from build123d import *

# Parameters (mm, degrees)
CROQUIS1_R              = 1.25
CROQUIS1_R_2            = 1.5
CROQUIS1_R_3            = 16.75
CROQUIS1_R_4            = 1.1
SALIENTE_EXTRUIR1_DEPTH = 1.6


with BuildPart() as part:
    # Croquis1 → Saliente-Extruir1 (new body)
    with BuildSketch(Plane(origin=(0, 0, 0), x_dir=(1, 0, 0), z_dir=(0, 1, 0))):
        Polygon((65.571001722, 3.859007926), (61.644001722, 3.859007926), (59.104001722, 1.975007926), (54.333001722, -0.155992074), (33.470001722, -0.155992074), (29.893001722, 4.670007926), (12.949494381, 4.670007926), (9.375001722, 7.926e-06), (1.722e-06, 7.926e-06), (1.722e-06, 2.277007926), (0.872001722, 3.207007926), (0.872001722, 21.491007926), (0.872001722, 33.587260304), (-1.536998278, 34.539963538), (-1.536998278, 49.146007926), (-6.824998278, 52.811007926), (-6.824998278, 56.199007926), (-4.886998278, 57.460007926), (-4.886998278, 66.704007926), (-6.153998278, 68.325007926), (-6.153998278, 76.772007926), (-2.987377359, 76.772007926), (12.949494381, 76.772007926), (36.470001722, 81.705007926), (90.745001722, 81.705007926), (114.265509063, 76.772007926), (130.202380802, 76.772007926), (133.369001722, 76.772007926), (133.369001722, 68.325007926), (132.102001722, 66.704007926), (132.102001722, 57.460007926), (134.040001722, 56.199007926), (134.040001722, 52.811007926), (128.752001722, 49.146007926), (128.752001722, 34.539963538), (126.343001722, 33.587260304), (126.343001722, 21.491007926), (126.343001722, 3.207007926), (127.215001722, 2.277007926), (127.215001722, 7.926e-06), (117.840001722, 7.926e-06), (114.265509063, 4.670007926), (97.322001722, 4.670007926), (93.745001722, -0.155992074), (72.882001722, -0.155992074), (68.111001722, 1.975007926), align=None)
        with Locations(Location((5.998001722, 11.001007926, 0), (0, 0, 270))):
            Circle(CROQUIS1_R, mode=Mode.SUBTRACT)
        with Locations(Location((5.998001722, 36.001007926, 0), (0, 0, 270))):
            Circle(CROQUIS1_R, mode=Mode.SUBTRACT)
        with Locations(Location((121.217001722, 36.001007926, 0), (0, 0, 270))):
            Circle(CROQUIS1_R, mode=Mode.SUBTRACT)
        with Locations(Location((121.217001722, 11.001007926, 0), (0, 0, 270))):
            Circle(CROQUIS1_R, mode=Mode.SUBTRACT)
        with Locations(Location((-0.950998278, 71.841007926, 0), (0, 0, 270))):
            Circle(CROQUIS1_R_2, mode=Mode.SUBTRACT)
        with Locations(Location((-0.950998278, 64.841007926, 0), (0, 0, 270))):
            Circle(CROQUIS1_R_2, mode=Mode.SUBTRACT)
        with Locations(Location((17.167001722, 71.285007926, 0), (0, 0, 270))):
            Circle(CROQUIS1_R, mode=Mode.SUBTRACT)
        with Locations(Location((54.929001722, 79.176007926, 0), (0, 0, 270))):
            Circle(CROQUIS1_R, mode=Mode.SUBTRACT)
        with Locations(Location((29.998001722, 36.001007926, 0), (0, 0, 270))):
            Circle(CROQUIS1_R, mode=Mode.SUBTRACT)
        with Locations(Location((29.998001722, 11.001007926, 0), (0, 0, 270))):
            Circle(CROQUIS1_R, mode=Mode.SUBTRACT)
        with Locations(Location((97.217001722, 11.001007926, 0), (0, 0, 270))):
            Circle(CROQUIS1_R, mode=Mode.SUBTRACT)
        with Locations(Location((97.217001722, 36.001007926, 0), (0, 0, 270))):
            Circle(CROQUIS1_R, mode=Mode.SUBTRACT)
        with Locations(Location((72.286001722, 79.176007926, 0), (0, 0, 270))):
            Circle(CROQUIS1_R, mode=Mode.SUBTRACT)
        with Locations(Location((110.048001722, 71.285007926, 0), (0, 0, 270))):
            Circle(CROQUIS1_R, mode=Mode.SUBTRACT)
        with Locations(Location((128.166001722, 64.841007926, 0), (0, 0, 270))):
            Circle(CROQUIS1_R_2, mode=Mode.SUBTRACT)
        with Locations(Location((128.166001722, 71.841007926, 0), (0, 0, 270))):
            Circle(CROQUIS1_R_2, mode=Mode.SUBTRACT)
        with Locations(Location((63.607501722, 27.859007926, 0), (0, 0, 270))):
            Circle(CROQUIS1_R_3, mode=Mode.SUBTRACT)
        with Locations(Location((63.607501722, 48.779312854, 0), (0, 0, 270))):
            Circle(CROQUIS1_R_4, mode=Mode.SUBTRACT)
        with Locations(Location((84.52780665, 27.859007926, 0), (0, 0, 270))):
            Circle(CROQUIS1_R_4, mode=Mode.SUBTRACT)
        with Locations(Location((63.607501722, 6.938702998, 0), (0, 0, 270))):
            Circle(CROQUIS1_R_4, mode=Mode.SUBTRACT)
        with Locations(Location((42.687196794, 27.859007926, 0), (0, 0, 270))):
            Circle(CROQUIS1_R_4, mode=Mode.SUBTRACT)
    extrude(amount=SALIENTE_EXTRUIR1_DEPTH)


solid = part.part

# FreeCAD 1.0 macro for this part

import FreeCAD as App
import Part
import Sketcher
from FreeCAD import Vector
Q = App.Units.Quantity

doc = App.newDocument("Part")
body = doc.addObject("PartDesign::Body", "Body")

sketch1 = body.newObject("Sketcher::SketchObject", "Sketch")
sketch1.AttachmentSupport = (doc.getObject("XZ_Plane"), [""])
sketch1.MapMode = "FlatFace"
sketch1.addGeometry(Part.LineSegment(Vector(61.6, -3.9, 0), Vector(65.6, -3.9, 0)), False)
sketch1.addGeometry(Part.LineSegment(Vector(65.6, -3.9, 0), Vector(68.1, -2, 0)), False)
sketch1.addGeometry(Part.LineSegment(Vector(68.1, -2, 0), Vector(72.9, 0.2, 0)), False)
sketch1.addGeometry(Part.LineSegment(Vector(72.9, 0.2, 0), Vector(93.7, 0.2, 0)), False)
sketch1.addGeometry(Part.LineSegment(Vector(93.7, 0.2, 0), Vector(97.3, -4.7, 0)), False)
sketch1.addGeometry(Part.LineSegment(Vector(97.3, -4.7, 0), Vector(114.3, -4.7, 0)), False)
sketch1.addGeometry(Part.LineSegment(Vector(114.3, -4.7, 0), Vector(117.8, 0, 0)), False)
sketch1.addGeometry(Part.LineSegment(Vector(117.8, 0, 0), Vector(127.2, 0, 0)), False)
sketch1.addGeometry(Part.LineSegment(Vector(127.2, 0, 0), Vector(127.2, -2.3, 0)), False)
sketch1.addGeometry(Part.LineSegment(Vector(127.2, -2.3, 0), Vector(126.3, -3.2, 0)), False)
sketch1.addGeometry(Part.LineSegment(Vector(126.3, -3.2, 0), Vector(126.3, -33.6, 0)), False)
sketch1.addGeometry(Part.LineSegment(Vector(126.3, -33.6, 0), Vector(128.8, -34.5, 0)), False)
sketch1.addGeometry(Part.LineSegment(Vector(128.8, -34.5, 0), Vector(128.8, -49.1, 0)), False)
sketch1.addGeometry(Part.LineSegment(Vector(128.8, -49.1, 0), Vector(134, -52.8, 0)), False)
sketch1.addGeometry(Part.LineSegment(Vector(134, -52.8, 0), Vector(134, -56.2, 0)), False)
sketch1.addGeometry(Part.LineSegment(Vector(134, -56.2, 0), Vector(132.1, -57.5, 0)), False)
sketch1.addGeometry(Part.LineSegment(Vector(132.1, -57.5, 0), Vector(132.1, -66.7, 0)), False)
sketch1.addGeometry(Part.LineSegment(Vector(132.1, -66.7, 0), Vector(133.4, -68.3, 0)), False)
sketch1.addGeometry(Part.LineSegment(Vector(133.4, -68.3, 0), Vector(133.4, -76.8, 0)), False)
sketch1.addGeometry(Part.LineSegment(Vector(133.4, -76.8, 0), Vector(114.3, -76.8, 0)), False)
sketch1.addGeometry(Part.LineSegment(Vector(114.3, -76.8, 0), Vector(90.7, -81.7, 0)), False)
sketch1.addGeometry(Part.LineSegment(Vector(90.7, -81.7, 0), Vector(36.5, -81.7, 0)), False)
sketch1.addGeometry(Part.LineSegment(Vector(36.5, -81.7, 0), Vector(12.9, -76.8, 0)), False)
sketch1.addGeometry(Part.LineSegment(Vector(12.9, -76.8, 0), Vector(-6.2, -76.8, 0)), False)
sketch1.addGeometry(Part.LineSegment(Vector(-6.2, -76.8, 0), Vector(-6.2, -68.3, 0)), False)
sketch1.addGeometry(Part.LineSegment(Vector(-6.2, -68.3, 0), Vector(-4.9, -66.7, 0)), False)
sketch1.addGeometry(Part.LineSegment(Vector(-4.9, -66.7, 0), Vector(-4.9, -57.5, 0)), False)
sketch1.addGeometry(Part.LineSegment(Vector(-4.9, -57.5, 0), Vector(-6.8, -56.2, 0)), False)
sketch1.addGeometry(Part.LineSegment(Vector(-6.8, -56.2, 0), Vector(-6.8, -52.8, 0)), False)
sketch1.addGeometry(Part.LineSegment(Vector(-6.8, -52.8, 0), Vector(-1.5, -49.1, 0)), False)
sketch1.addGeometry(Part.LineSegment(Vector(-1.5, -49.1, 0), Vector(-1.5, -34.5, 0)), False)
sketch1.addGeometry(Part.LineSegment(Vector(-1.5, -34.5, 0), Vector(0.9, -33.6, 0)), False)
sketch1.addGeometry(Part.LineSegment(Vector(0.9, -33.6, 0), Vector(0.9, -3.2, 0)), False)
sketch1.addGeometry(Part.LineSegment(Vector(0.9, -3.2, 0), Vector(0, -2.3, 0)), False)
sketch1.addGeometry(Part.LineSegment(Vector(0, -2.3, 0), Vector(0, 0, 0)), False)
sketch1.addGeometry(Part.LineSegment(Vector(0, 0, 0), Vector(9.4, 0, 0)), False)
sketch1.addGeometry(Part.LineSegment(Vector(9.4, 0, 0), Vector(12.9, -4.7, 0)), False)
sketch1.addGeometry(Part.LineSegment(Vector(12.9, -4.7, 0), Vector(29.9, -4.7, 0)), False)
sketch1.addGeometry(Part.LineSegment(Vector(29.9, -4.7, 0), Vector(33.5, 0.2, 0)), False)
sketch1.addGeometry(Part.LineSegment(Vector(33.5, 0.2, 0), Vector(54.3, 0.2, 0)), False)
sketch1.addGeometry(Part.LineSegment(Vector(54.3, 0.2, 0), Vector(59.1, -2, 0)), False)
sketch1.addGeometry(Part.LineSegment(Vector(59.1, -2, 0), Vector(61.6, -3.9, 0)), False)
sketch1.addGeometry(Part.Circle(Vector(121.2, -11, 0), Vector(0, 0, 1), 1.2), False)
sketch1.addGeometry(Part.Circle(Vector(97.2, -11, 0), Vector(0, 0, 1), 1.2), False)
sketch1.addGeometry(Part.Circle(Vector(121.2, -36, 0), Vector(0, 0, 1), 1.2), False)
sketch1.addGeometry(Part.Circle(Vector(97.2, -36, 0), Vector(0, 0, 1), 1.2), False)
sketch1.addGeometry(Part.Circle(Vector(84.5, -27.9, 0), Vector(0, 0, 1), 1.1), False)
sketch1.addGeometry(Part.Circle(Vector(63.6, -6.9, 0), Vector(0, 0, 1), 1.1), False)
sketch1.addGeometry(Part.Circle(Vector(30, -11, 0), Vector(0, 0, 1), 1.2), False)
sketch1.addGeometry(Part.Circle(Vector(6, -11, 0), Vector(0, 0, 1), 1.2), False)
sketch1.addGeometry(Part.Circle(Vector(63.6, -27.9, 0), Vector(0, 0, 1), 16.8), False)
sketch1.addGeometry(Part.Circle(Vector(42.7, -27.9, 0), Vector(0, 0, 1), 1.1), False)
sketch1.addGeometry(Part.Circle(Vector(30, -36, 0), Vector(0, 0, 1), 1.2), False)
sketch1.addGeometry(Part.Circle(Vector(6, -36, 0), Vector(0, 0, 1), 1.2), False)
sketch1.addGeometry(Part.Circle(Vector(128.2, -64.8, 0), Vector(0, 0, 1), 1.5), False)
sketch1.addGeometry(Part.Circle(Vector(128.2, -71.8, 0), Vector(0, 0, 1), 1.5), False)
sketch1.addGeometry(Part.Circle(Vector(110, -71.3, 0), Vector(0, 0, 1), 1.2), False)
sketch1.addGeometry(Part.Circle(Vector(72.3, -79.2, 0), Vector(0, 0, 1), 1.2), False)
sketch1.addGeometry(Part.Circle(Vector(63.6, -48.8, 0), Vector(0, 0, 1), 1.1), False)
sketch1.addGeometry(Part.Circle(Vector(54.9, -79.2, 0), Vector(0, 0, 1), 1.2), False)
sketch1.addGeometry(Part.Circle(Vector(-1, -64.8, 0), Vector(0, 0, 1), 1.5), False)
sketch1.addGeometry(Part.Circle(Vector(17.2, -71.3, 0), Vector(0, 0, 1), 1.2), False)
sketch1.addGeometry(Part.Circle(Vector(-1, -71.8, 0), Vector(0, 0, 1), 1.5), False)
sketch1.addConstraint(Sketcher.Constraint("Coincident", 0, 2, 1, 1))
sketch1.addConstraint(Sketcher.Constraint("Coincident", 1, 2, 2, 1))
sketch1.addConstraint(Sketcher.Constraint("Coincident", 2, 2, 3, 1))
sketch1.addConstraint(Sketcher.Constraint("Coincident", 3, 2, 4, 1))
sketch1.addConstraint(Sketcher.Constraint("Coincident", 4, 2, 5, 1))
sketch1.addConstraint(Sketcher.Constraint("Coincident", 5, 2, 6, 1))
sketch1.addConstraint(Sketcher.Constraint("Coincident", 6, 2, 7, 1))
sketch1.addConstraint(Sketcher.Constraint("Coincident", 7, 2, 8, 1))
sketch1.addConstraint(Sketcher.Constraint("Coincident", 8, 2, 9, 1))
sketch1.addConstraint(Sketcher.Constraint("Coincident", 9, 2, 10, 1))
sketch1.addConstraint(Sketcher.Constraint("Coincident", 10, 2, 11, 1))
sketch1.addConstraint(Sketcher.Constraint("Coincident", 11, 2, 12, 1))
sketch1.addConstraint(Sketcher.Constraint("Coincident", 12, 2, 13, 1))
sketch1.addConstraint(Sketcher.Constraint("Coincident", 13, 2, 14, 1))
sketch1.addConstraint(Sketcher.Constraint("Coincident", 14, 2, 15, 1))
sketch1.addConstraint(Sketcher.Constraint("Coincident", 15, 2, 16, 1))
sketch1.addConstraint(Sketcher.Constraint("Coincident", 16, 2, 17, 1))
sketch1.addConstraint(Sketcher.Constraint("Coincident", 17, 2, 18, 1))
sketch1.addConstraint(Sketcher.Constraint("Coincident", 18, 2, 19, 1))
sketch1.addConstraint(Sketcher.Constraint("Coincident", 19, 2, 20, 1))
sketch1.addConstraint(Sketcher.Constraint("Coincident", 20, 2, 21, 1))
sketch1.addConstraint(Sketcher.Constraint("Coincident", 21, 2, 22, 1))
sketch1.addConstraint(Sketcher.Constraint("Coincident", 22, 2, 23, 1))
sketch1.addConstraint(Sketcher.Constraint("Coincident", 23, 2, 24, 1))
sketch1.addConstraint(Sketcher.Constraint("Coincident", 24, 2, 25, 1))
sketch1.addConstraint(Sketcher.Constraint("Coincident", 25, 2, 26, 1))
sketch1.addConstraint(Sketcher.Constraint("Coincident", 26, 2, 27, 1))
sketch1.addConstraint(Sketcher.Constraint("Coincident", 27, 2, 28, 1))
sketch1.addConstraint(Sketcher.Constraint("Coincident", 28, 2, 29, 1))
sketch1.addConstraint(Sketcher.Constraint("Coincident", 29, 2, 30, 1))
sketch1.addConstraint(Sketcher.Constraint("Coincident", 30, 2, 31, 1))
sketch1.addConstraint(Sketcher.Constraint("Coincident", 31, 2, 32, 1))
sketch1.addConstraint(Sketcher.Constraint("Coincident", 32, 2, 33, 1))
sketch1.addConstraint(Sketcher.Constraint("Coincident", 33, 2, 34, 1))
sketch1.addConstraint(Sketcher.Constraint("Coincident", 34, 2, 35, 1))
sketch1.addConstraint(Sketcher.Constraint("Coincident", 35, 2, 36, 1))
sketch1.addConstraint(Sketcher.Constraint("Coincident", 36, 2, 37, 1))
sketch1.addConstraint(Sketcher.Constraint("Coincident", 37, 2, 38, 1))
sketch1.addConstraint(Sketcher.Constraint("Coincident", 38, 2, 39, 1))
sketch1.addConstraint(Sketcher.Constraint("Coincident", 39, 2, 40, 1))
sketch1.addConstraint(Sketcher.Constraint("Coincident", 40, 2, 41, 1))
sketch1.addConstraint(Sketcher.Constraint("Coincident", 41, 2, 0, 1))
sketch1.addConstraint(Sketcher.Constraint("Horizontal", 0))
sketch1.addConstraint(Sketcher.Constraint("Horizontal", 3))
sketch1.addConstraint(Sketcher.Constraint("Horizontal", 5))
sketch1.addConstraint(Sketcher.Constraint("Horizontal", 7))
sketch1.addConstraint(Sketcher.Constraint("Vertical", 8))
sketch1.addConstraint(Sketcher.Constraint("Vertical", 10))
sketch1.addConstraint(Sketcher.Constraint("Vertical", 12))
sketch1.addConstraint(Sketcher.Constraint("Vertical", 14))
sketch1.addConstraint(Sketcher.Constraint("Vertical", 16))
sketch1.addConstraint(Sketcher.Constraint("Vertical", 18))
sketch1.addConstraint(Sketcher.Constraint("Horizontal", 19))
sketch1.addConstraint(Sketcher.Constraint("Horizontal", 21))
sketch1.addConstraint(Sketcher.Constraint("Horizontal", 23))
sketch1.addConstraint(Sketcher.Constraint("Vertical", 24))
sketch1.addConstraint(Sketcher.Constraint("Vertical", 26))
sketch1.addConstraint(Sketcher.Constraint("Vertical", 28))
sketch1.addConstraint(Sketcher.Constraint("Vertical", 30))
sketch1.addConstraint(Sketcher.Constraint("Vertical", 32))
sketch1.addConstraint(Sketcher.Constraint("Vertical", 34))
sketch1.addConstraint(Sketcher.Constraint("Horizontal", 35))
sketch1.addConstraint(Sketcher.Constraint("Horizontal", 37))
sketch1.addConstraint(Sketcher.Constraint("Horizontal", 39))
sketch1.addConstraint(Sketcher.Constraint("Coincident", 34, 2, -1, 1))
sketch1.addConstraint(Sketcher.Constraint("Equal", 42, 43))
sketch1.addConstraint(Sketcher.Constraint("Equal", 43, 44))
sketch1.addConstraint(Sketcher.Constraint("Equal", 44, 45))
sketch1.addConstraint(Sketcher.Constraint("Equal", 46, 47))
sketch1.addConstraint(Sketcher.Constraint("Equal", 45, 48))
sketch1.addConstraint(Sketcher.Constraint("Equal", 48, 49))
sketch1.addConstraint(Sketcher.Constraint("Equal", 47, 51))
sketch1.addConstraint(Sketcher.Constraint("Equal", 49, 52))
sketch1.addConstraint(Sketcher.Constraint("Equal", 52, 53))
sketch1.addConstraint(Sketcher.Constraint("Equal", 54, 55))
sketch1.addConstraint(Sketcher.Constraint("Equal", 53, 56))
sketch1.addConstraint(Sketcher.Constraint("Equal", 56, 57))
sketch1.addConstraint(Sketcher.Constraint("Equal", 51, 58))
sketch1.addConstraint(Sketcher.Constraint("Equal", 57, 59))
sketch1.addConstraint(Sketcher.Constraint("Equal", 55, 60))
sketch1.addConstraint(Sketcher.Constraint("Equal", 59, 61))
sketch1.addConstraint(Sketcher.Constraint("Equal", 60, 62))
sketch1.addConstraint(Sketcher.Constraint("Horizontal", 42, 3, 43, 3))
sketch1.addConstraint(Sketcher.Constraint("Horizontal", 44, 3, 45, 3))
sketch1.addConstraint(Sketcher.Constraint("Horizontal", 43, 3, 48, 3))
sketch1.addConstraint(Sketcher.Constraint("Horizontal", 48, 3, 49, 3))
sketch1.addConstraint(Sketcher.Constraint("Horizontal", 46, 3, 50, 3))
sketch1.addConstraint(Sketcher.Constraint("Horizontal", 50, 3, 51, 3))
sketch1.addConstraint(Sketcher.Constraint("Horizontal", 45, 3, 52, 3))
sketch1.addConstraint(Sketcher.Constraint("Horizontal", 52, 3, 53, 3))
sketch1.addConstraint(Sketcher.Constraint("Horizontal", 57, 3, 59, 3))
sketch1.addConstraint(Sketcher.Constraint("Horizontal", 54, 3, 60, 3))
sketch1.addConstraint(Sketcher.Constraint("Horizontal", 56, 3, 61, 3))
sketch1.addConstraint(Sketcher.Constraint("Horizontal", 55, 3, 62, 3))
sketch1.addConstraint(Sketcher.Constraint("Horizontal", 19, 2, 22, 2))
sketch1.addConstraint(Sketcher.Constraint("Horizontal", 17, 2, 24, 2))
sketch1.addConstraint(Sketcher.Constraint("Horizontal", 16, 2, 25, 2))
sketch1.addConstraint(Sketcher.Constraint("Horizontal", 15, 2, 26, 2))
sketch1.addConstraint(Sketcher.Constraint("Horizontal", 14, 2, 27, 2))
sketch1.addConstraint(Sketcher.Constraint("Horizontal", 13, 2, 28, 2))
sketch1.addConstraint(Sketcher.Constraint("Horizontal", 12, 2, 29, 2))
sketch1.addConstraint(Sketcher.Constraint("Horizontal", 11, 2, 30, 2))
sketch1.addConstraint(Sketcher.Constraint("Horizontal", 10, 2, 31, 2))
sketch1.addConstraint(Sketcher.Constraint("Horizontal", 9, 2, 32, 2))
sketch1.addConstraint(Sketcher.Constraint("Horizontal", 8, 2, 33, 2))
sketch1.addConstraint(Sketcher.Constraint("Horizontal", 7, 2, 34, 2))
sketch1.addConstraint(Sketcher.Constraint("Horizontal", 5, 2, 36, 2))
sketch1.addConstraint(Sketcher.Constraint("Horizontal", 3, 2, 38, 2))
sketch1.addConstraint(Sketcher.Constraint("Horizontal", 1, 2, 40, 2))
sketch1.addConstraint(Sketcher.Constraint("Vertical", 42, 3, 44, 3))
sketch1.addConstraint(Sketcher.Constraint("Vertical", 43, 3, 45, 3))
sketch1.addConstraint(Sketcher.Constraint("Vertical", 47, 3, 50, 3))
sketch1.addConstraint(Sketcher.Constraint("Vertical", 48, 3, 52, 3))
sketch1.addConstraint(Sketcher.Constraint("Vertical", 49, 3, 53, 3))
sketch1.addConstraint(Sketcher.Constraint("Vertical", 54, 3, 55, 3))
sketch1.addConstraint(Sketcher.Constraint("Vertical", 50, 3, 58, 3))
sketch1.addConstraint(Sketcher.Constraint("Vertical", 60, 3, 62, 3))
sketch1.addConstraint(Sketcher.Constraint("Vertical", 5, 2, 19, 2))
sketch1.addConstraint(Sketcher.Constraint("Vertical", 22, 2, 36, 2))
sketch1.addConstraint(Sketcher.Constraint("Equal", 19, 23))
sketch1.addConstraint(Sketcher.Constraint("Equal", 7, 35))
sketch1.addConstraint(Sketcher.Constraint("Equal", 5, 37))
sketch1.addConstraint(Sketcher.Constraint("Equal", 3, 39))
sketch1.addConstraint(Sketcher.Constraint("Equal", 20, 22))
sketch1.addConstraint(Sketcher.Constraint("Equal", 17, 25))
sketch1.addConstraint(Sketcher.Constraint("Equal", 15, 27))
sketch1.addConstraint(Sketcher.Constraint("Equal", 13, 29))
sketch1.addConstraint(Sketcher.Constraint("Equal", 11, 31))
sketch1.addConstraint(Sketcher.Constraint("Equal", 9, 33))
sketch1.addConstraint(Sketcher.Constraint("Equal", 4, 38))
sketch1.addConstraint(Sketcher.Constraint("Equal", 2, 40))
sketch1.addConstraint(Sketcher.Constraint("Equal", 1, 41))
sketch1.addConstraint(Sketcher.Constraint("Diameter", 54, Q("3 mm")))
sketch1.addConstraint(Sketcher.Constraint("Diameter", 42, Q("2.5 mm")))
sketch1.addConstraint(Sketcher.Constraint("Diameter", 46, Q("2.2 mm")))
sketch1.addConstraint(Sketcher.Constraint("Diameter", 50, Q("33.5 mm")))
sketch1.addConstraint(Sketcher.Constraint("DistanceX", 0, 1, 0, 2, Q("3.927 mm")))
sketch1.addConstraint(Sketcher.Constraint("DistanceX", 3, 1, 3, 2, Q("20.863 mm")))
sketch1.addConstraint(Sketcher.Constraint("DistanceX", 7, 1, 7, 2, Q("9.375 mm")))
sketch1.addConstraint(Sketcher.Constraint("DistanceX", 21, 2, 21, 1, Q("54.275 mm")))
sketch1.addConstraint(Sketcher.Constraint("DistanceY", 8, 2, 8, 1, Q("2.277 mm")))
sketch1.addConstraint(Sketcher.Constraint("DistanceY", 14, 2, 14, 1, Q("3.388 mm")))
sketch1.addConstraint(Sketcher.Constraint("DistanceY", 16, 2, 16, 1, Q("9.244 mm")))
sketch1.addConstraint(Sketcher.Constraint("DistanceY", 18, 2, 18, 1, Q("8.447 mm")))
sketch1.addConstraint(Sketcher.Constraint("DistanceX", -1, 1, 6, 2, Q("117.840002 mm")))
sketch1.addConstraint(Sketcher.Constraint("DistanceX", -1, 1, 13, 2, Q("134.040002 mm")))
sketch1.addConstraint(Sketcher.Constraint("DistanceX", -1, 1, 38, 2, Q("33.470002 mm")))
sketch1.addConstraint(Sketcher.Constraint("DistanceX", -1, 1, 42, 3, Q("121.217002 mm")))
sketch1.addConstraint(Sketcher.Constraint("DistanceX", -1, 1, 43, 3, Q("97.217002 mm")))
sketch1.addConstraint(Sketcher.Constraint("DistanceX", -1, 1, 48, 3, Q("29.998002 mm")))
sketch1.addConstraint(Sketcher.Constraint("DistanceX", -1, 1, 49, 3, Q("5.998002 mm")))
sketch1.addConstraint(Sketcher.Constraint("DistanceX", -1, 1, 54, 3, Q("128.166002 mm")))
sketch1.addConstraint(Sketcher.Constraint("DistanceX", -1, 1, 56, 3, Q("110.048002 mm")))
sketch1.addConstraint(Sketcher.Constraint("DistanceX", -1, 1, 57, 3, Q("72.286002 mm")))
sketch1.addConstraint(Sketcher.Constraint("DistanceX", -1, 1, 59, 3, Q("54.929002 mm")))
sketch1.addConstraint(Sketcher.Constraint("DistanceX", 60, 3, -1, 1, Q("0.950998 mm")))
sketch1.addConstraint(Sketcher.Constraint("DistanceX", -1, 1, 61, 3, Q("17.167002 mm")))
sketch1.addConstraint(Sketcher.Constraint("DistanceX", -1, 1, 1, 2, Q("68.111002 mm")))
sketch1.addConstraint(Sketcher.Constraint("DistanceX", -1, 1, 4, 2, Q("97.322002 mm")))
sketch1.addConstraint(Sketcher.Constraint("DistanceX", -1, 1, 9, 2, Q("126.343002 mm")))
sketch1.addConstraint(Sketcher.Constraint("DistanceX", -1, 1, 11, 2, Q("128.752002 mm")))
sketch1.addConstraint(Sketcher.Constraint("DistanceX", -1, 1, 15, 2, Q("132.102002 mm")))
sketch1.addConstraint(Sketcher.Constraint("DistanceX", -1, 1, 17, 2, Q("133.369002 mm")))
sketch1.addConstraint(Sketcher.Constraint("DistanceX", -1, 1, 47, 3, Q("63.607502 mm")))
sketch1.addConstraint(Sketcher.Constraint("Distance", 17, Q("2.057409 mm")))
sketch1.addConstraint(Sketcher.Constraint("DistanceX", 5, 1, 5, 2, Q("16.943507 mm")))
sketch1.addConstraint(Sketcher.Constraint("DistanceY", 10, 2, 10, 1, Q("30.380252 mm")))
sketch1.addConstraint(Sketcher.Constraint("DistanceY", 12, 2, 12, 1, Q("14.606044 mm")))
sketch1.addConstraint(Sketcher.Constraint("DistanceY", 10, 2, -1, 1, Q("33.58726 mm")))
sketch1.addConstraint(Sketcher.Constraint("Distance", 1, Q("3.162445 mm")))
sketch1.addConstraint(Sketcher.Constraint("Distance", 2, Q("5.225285 mm")))
sketch1.addConstraint(Sketcher.Constraint("Distance", 4, Q("6.007096 mm")))
sketch1.addConstraint(Sketcher.Constraint("Distance", 6, Q("5.880978 mm")))
sketch1.addConstraint(Sketcher.Constraint("Distance", 11, Q("2.590545 mm")))
sketch1.addConstraint(Sketcher.Constraint("Distance", 13, Q("6.433908 mm")))
sketch1.addConstraint(Sketcher.Constraint("Distance", 15, Q("2.312134 mm")))
sketch1.addConstraint(Sketcher.Constraint("Distance", 20, Q("24.032244 mm")))
sketch1.addConstraint(Sketcher.Constraint("DistanceY", 42, 3, -1, 1, Q("11.001008 mm")))
sketch1.addConstraint(Sketcher.Constraint("DistanceY", 44, 3, -1, 1, Q("36.001008 mm")))
sketch1.addConstraint(Sketcher.Constraint("DistanceX", -1, 1, 46, 3, Q("84.527807 mm")))
sketch1.addConstraint(Sketcher.Constraint("DistanceY", 46, 3, -1, 1, Q("27.859008 mm")))
sketch1.addConstraint(Sketcher.Constraint("DistanceY", 47, 3, -1, 1, Q("6.938703 mm")))
sketch1.addConstraint(Sketcher.Constraint("DistanceX", -1, 1, 51, 3, Q("42.687197 mm")))
sketch1.addConstraint(Sketcher.Constraint("DistanceY", 54, 3, -1, 1, Q("64.841008 mm")))
sketch1.addConstraint(Sketcher.Constraint("DistanceY", 55, 3, -1, 1, Q("71.841008 mm")))
sketch1.addConstraint(Sketcher.Constraint("DistanceY", 56, 3, -1, 1, Q("71.285008 mm")))
sketch1.addConstraint(Sketcher.Constraint("DistanceY", 57, 3, -1, 1, Q("79.176008 mm")))
sketch1.addConstraint(Sketcher.Constraint("DistanceY", 58, 3, -1, 1, Q("48.779313 mm")))
pad1 = body.newObject("PartDesign::Pad", "Pad")
pad1.Profile = sketch1
pad1.Length = 1.6
pad1.Reversed = True

doc.recompute()
